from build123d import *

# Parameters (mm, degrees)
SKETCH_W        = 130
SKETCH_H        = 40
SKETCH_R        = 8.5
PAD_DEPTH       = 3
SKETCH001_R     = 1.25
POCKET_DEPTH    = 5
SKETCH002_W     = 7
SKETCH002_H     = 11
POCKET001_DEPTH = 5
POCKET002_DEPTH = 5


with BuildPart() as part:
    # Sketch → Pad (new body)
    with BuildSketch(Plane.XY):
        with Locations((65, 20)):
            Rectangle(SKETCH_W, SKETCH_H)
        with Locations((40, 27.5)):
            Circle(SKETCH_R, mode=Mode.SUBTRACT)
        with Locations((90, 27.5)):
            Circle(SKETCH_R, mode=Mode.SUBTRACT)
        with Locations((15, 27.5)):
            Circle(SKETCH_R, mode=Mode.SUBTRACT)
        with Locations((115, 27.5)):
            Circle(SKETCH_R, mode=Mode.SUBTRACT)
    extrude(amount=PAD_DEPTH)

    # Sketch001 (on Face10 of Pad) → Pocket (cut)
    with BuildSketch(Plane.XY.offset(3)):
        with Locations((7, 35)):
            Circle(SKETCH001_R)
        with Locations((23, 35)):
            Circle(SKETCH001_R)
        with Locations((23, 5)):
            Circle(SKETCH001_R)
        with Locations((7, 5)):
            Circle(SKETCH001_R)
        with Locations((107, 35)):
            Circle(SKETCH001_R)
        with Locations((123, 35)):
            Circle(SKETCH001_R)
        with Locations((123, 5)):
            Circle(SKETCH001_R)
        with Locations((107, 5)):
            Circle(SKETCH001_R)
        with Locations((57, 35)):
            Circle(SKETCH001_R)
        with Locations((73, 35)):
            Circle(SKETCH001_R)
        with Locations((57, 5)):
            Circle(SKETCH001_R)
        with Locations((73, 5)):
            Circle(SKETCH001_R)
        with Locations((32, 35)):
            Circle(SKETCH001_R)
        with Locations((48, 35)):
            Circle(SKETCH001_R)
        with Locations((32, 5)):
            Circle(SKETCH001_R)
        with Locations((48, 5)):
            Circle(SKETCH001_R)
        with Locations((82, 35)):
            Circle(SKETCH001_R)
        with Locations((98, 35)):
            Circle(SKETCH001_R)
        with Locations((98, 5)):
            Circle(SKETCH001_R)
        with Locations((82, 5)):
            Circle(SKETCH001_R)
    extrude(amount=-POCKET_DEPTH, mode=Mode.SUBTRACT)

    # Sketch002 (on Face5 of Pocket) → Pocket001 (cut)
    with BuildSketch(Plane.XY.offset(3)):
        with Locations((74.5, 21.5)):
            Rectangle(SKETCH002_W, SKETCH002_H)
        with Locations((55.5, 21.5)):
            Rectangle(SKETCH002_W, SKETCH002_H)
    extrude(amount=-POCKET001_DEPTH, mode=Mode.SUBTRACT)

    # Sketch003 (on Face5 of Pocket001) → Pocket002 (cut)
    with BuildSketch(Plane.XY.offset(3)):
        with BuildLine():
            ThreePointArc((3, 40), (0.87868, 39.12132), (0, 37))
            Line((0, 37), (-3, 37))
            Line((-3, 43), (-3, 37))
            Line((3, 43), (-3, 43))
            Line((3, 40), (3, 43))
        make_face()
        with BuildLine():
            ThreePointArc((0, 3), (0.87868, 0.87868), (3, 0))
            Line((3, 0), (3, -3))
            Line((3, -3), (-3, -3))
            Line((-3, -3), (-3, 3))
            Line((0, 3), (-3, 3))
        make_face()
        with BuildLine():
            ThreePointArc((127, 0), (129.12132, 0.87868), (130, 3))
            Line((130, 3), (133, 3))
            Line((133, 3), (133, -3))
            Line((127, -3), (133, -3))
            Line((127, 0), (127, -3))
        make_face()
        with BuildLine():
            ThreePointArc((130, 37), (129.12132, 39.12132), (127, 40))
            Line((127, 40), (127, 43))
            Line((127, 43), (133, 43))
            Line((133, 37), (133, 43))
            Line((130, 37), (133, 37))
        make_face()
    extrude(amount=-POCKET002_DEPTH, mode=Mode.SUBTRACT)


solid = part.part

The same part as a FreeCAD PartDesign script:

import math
import FreeCAD as App
import Part
import Sketcher


def add_polygon(sketch, points):
    """Adds a closed chain of lines whose ends are joined by coincident constraints."""
    first, n = sketch.GeometryCount, len(points)
    for a, b in zip(points, points[1:] + points[:1]):
        sketch.addGeometry(Part.LineSegment(App.Vector(*a, 0), App.Vector(*b, 0)), False)
    for i in range(n):
        sketch.addConstraint(Sketcher.Constraint("Coincident", first + i, 2, first + (i + 1) % n, 1))

doc = App.newDocument("Part")
body = doc.addObject("PartDesign::Body", "Body")

# Sketch on XY plane
sketch1 = body.newObject("Sketcher::SketchObject", "Sketch")
sketch1.AttachmentSupport = (doc.getObject("XY_Plane"), [""])
sketch1.MapMode = "FlatFace"
add_polygon(sketch1, [(0, 40), (0, 0), (130, 0), (130, 40)])  # lines 0-3
sketch1.addGeometry(Part.Circle(App.Vector(15, 27.5, 0), App.Vector(0, 0, 1), 8.5), False)  # 4
sketch1.addGeometry(Part.Circle(App.Vector(40, 27.5, 0), App.Vector(0, 0, 1), 8.5), False)  # 5
sketch1.addGeometry(Part.Circle(App.Vector(90, 27.5, 0), App.Vector(0, 0, 1), 8.5), False)  # 6
sketch1.addGeometry(Part.Circle(App.Vector(115, 27.5, 0), App.Vector(0, 0, 1), 8.5), False)  # 7
sketch1.addConstraint([
    Sketcher.Constraint("Vertical", 0),
    Sketcher.Constraint("Horizontal", 1),
    Sketcher.Constraint("Vertical", 2),
    Sketcher.Constraint("Horizontal", 3),
    Sketcher.Constraint("Coincident", 0, 2, -1, 1),
    Sketcher.Constraint("Equal", 4, 5),
    Sketcher.Constraint("Equal", 5, 6),
    Sketcher.Constraint("Equal", 6, 7),
    Sketcher.Constraint("Horizontal", 4, 3, 5, 3),
    Sketcher.Constraint("Horizontal", 5, 3, 6, 3),
    Sketcher.Constraint("Horizontal", 6, 3, 7, 3),
    Sketcher.Constraint("Diameter", 4, 17.0),
    Sketcher.Constraint("DistanceX", 1, 1, 1, 2, 130.0),
    Sketcher.Constraint("DistanceY", 0, 2, 0, 1, 40.0),
    Sketcher.Constraint("DistanceX", -1, 1, 4, 3, 15.0),
    Sketcher.Constraint("DistanceX", -1, 1, 5, 3, 40.0),
    Sketcher.Constraint("DistanceX", -1, 1, 6, 3, 90.0),
    Sketcher.Constraint("DistanceX", -1, 1, 7, 3, 115.0),
    Sketcher.Constraint("DistanceY", -1, 1, 4, 3, 27.5),
])
pad1 = body.newObject("PartDesign::Pad", "Pad")
pad1.Profile = sketch1
pad1.Length = 3

# Sketch on XY plane
sketch2 = body.newObject("Sketcher::SketchObject", "Sketch001")
sketch2.AttachmentSupport = (doc.getObject("XY_Plane"), [""])
sketch2.MapMode = "FlatFace"
sketch2.AttachmentOffset = App.Placement(App.Vector(0, 0, 3), App.Rotation())
sketch2.addGeometry([
    Part.Circle(App.Vector(7, 35, 0), App.Vector(0, 0, 1), 1.25),  # 0
    Part.Circle(App.Vector(23, 35, 0), App.Vector(0, 0, 1), 1.25),  # 1
    Part.Circle(App.Vector(23, 5, 0), App.Vector(0, 0, 1), 1.25),  # 2
    Part.Circle(App.Vector(7, 5, 0), App.Vector(0, 0, 1), 1.25),  # 3
    Part.Circle(App.Vector(107, 35, 0), App.Vector(0, 0, 1), 1.25),  # 4
    Part.Circle(App.Vector(123, 35, 0), App.Vector(0, 0, 1), 1.25),  # 5
    Part.Circle(App.Vector(123, 5, 0), App.Vector(0, 0, 1), 1.25),  # 6
    Part.Circle(App.Vector(107, 5, 0), App.Vector(0, 0, 1), 1.25),  # 7
    Part.Circle(App.Vector(57, 35, 0), App.Vector(0, 0, 1), 1.25),  # 8
    Part.Circle(App.Vector(73, 35, 0), App.Vector(0, 0, 1), 1.25),  # 9
    Part.Circle(App.Vector(57, 5, 0), App.Vector(0, 0, 1), 1.25),  # 10
    Part.Circle(App.Vector(73, 5, 0), App.Vector(0, 0, 1), 1.25),  # 11
    Part.Circle(App.Vector(32, 35, 0), App.Vector(0, 0, 1), 1.25),  # 12
    Part.Circle(App.Vector(48, 35, 0), App.Vector(0, 0, 1), 1.25),  # 13
    Part.Circle(App.Vector(32, 5, 0), App.Vector(0, 0, 1), 1.25),  # 14
    Part.Circle(App.Vector(48, 5, 0), App.Vector(0, 0, 1), 1.25),  # 15
    Part.Circle(App.Vector(82, 35, 0), App.Vector(0, 0, 1), 1.25),  # 16
    Part.Circle(App.Vector(98, 35, 0), App.Vector(0, 0, 1), 1.25),  # 17
    Part.Circle(App.Vector(98, 5, 0), App.Vector(0, 0, 1), 1.25),  # 18
    Part.Circle(App.Vector(82, 5, 0), App.Vector(0, 0, 1), 1.25),  # 19
], False)
sketch2.addConstraint([
    Sketcher.Constraint("Equal", 0, 1),
    Sketcher.Constraint("Equal", 1, 2),
    Sketcher.Constraint("Equal", 2, 3),
    Sketcher.Constraint("Equal", 3, 4),
    Sketcher.Constraint("Equal", 4, 5),
    Sketcher.Constraint("Equal", 5, 6),
    Sketcher.Constraint("Equal", 6, 7),
    Sketcher.Constraint("Equal", 7, 8),
    Sketcher.Constraint("Equal", 8, 9),
    Sketcher.Constraint("Equal", 9, 10),
    Sketcher.Constraint("Equal", 10, 11),
    Sketcher.Constraint("Equal", 11, 12),
    Sketcher.Constraint("Equal", 12, 13),
    Sketcher.Constraint("Equal", 13, 14),
    Sketcher.Constraint("Equal", 14, 15),
    Sketcher.Constraint("Equal", 15, 16),
    Sketcher.Constraint("Equal", 16, 17),
    Sketcher.Constraint("Equal", 17, 18),
    Sketcher.Constraint("Equal", 18, 19),
    Sketcher.Constraint("Horizontal", 0, 3, 1, 3),
    Sketcher.Constraint("Horizontal", 2, 3, 3, 3),
    Sketcher.Constraint("Horizontal", 1, 3, 4, 3),
    Sketcher.Constraint("Horizontal", 4, 3, 5, 3),
    Sketcher.Constraint("Horizontal", 3, 3, 6, 3),
    Sketcher.Constraint("Horizontal", 6, 3, 7, 3),
    Sketcher.Constraint("Horizontal", 5, 3, 8, 3),
    Sketcher.Constraint("Horizontal", 8, 3, 9, 3),
    Sketcher.Constraint("Horizontal", 7, 3, 10, 3),
    Sketcher.Constraint("Horizontal", 10, 3, 11, 3),
    Sketcher.Constraint("Horizontal", 9, 3, 12, 3),
    Sketcher.Constraint("Horizontal", 12, 3, 13, 3),
    Sketcher.Constraint("Horizontal", 11, 3, 14, 3),
    Sketcher.Constraint("Horizontal", 14, 3, 15, 3),
    Sketcher.Constraint("Horizontal", 13, 3, 16, 3),
    Sketcher.Constraint("Horizontal", 16, 3, 17, 3),
    Sketcher.Constraint("Horizontal", 15, 3, 18, 3),
    Sketcher.Constraint("Horizontal", 18, 3, 19, 3),
    Sketcher.Constraint("Vertical", 1, 3, 2, 3),
    Sketcher.Constraint("Vertical", 0, 3, 3, 3),
    Sketcher.Constraint("Vertical", 5, 3, 6, 3),
    Sketcher.Constraint("Vertical", 4, 3, 7, 3),
    Sketcher.Constraint("Vertical", 8, 3, 10, 3),
    Sketcher.Constraint("Vertical", 9, 3, 11, 3),
    Sketcher.Constraint("Vertical", 12, 3, 14, 3),
    Sketcher.Constraint("Vertical", 13, 3, 15, 3),
    Sketcher.Constraint("Vertical", 17, 3, 18, 3),
    Sketcher.Constraint("Vertical", 16, 3, 19, 3),
    Sketcher.Constraint("Diameter", 0, 2.5),
    Sketcher.Constraint("DistanceX", -1, 1, 0, 3, 7.0),
    Sketcher.Constraint("DistanceY", -1, 1, 0, 3, 35.0),
    Sketcher.Constraint("DistanceX", -1, 1, 1, 3, 23.0),
    Sketcher.Constraint("DistanceY", -1, 1, 2, 3, 5.0),
    Sketcher.Constraint("DistanceX", -1, 1, 4, 3, 107.0),
    Sketcher.Constraint("DistanceX", -1, 1, 5, 3, 123.0),
    Sketcher.Constraint("DistanceX", -1, 1, 8, 3, 57.0),
    Sketcher.Constraint("DistanceX", -1, 1, 9, 3, 73.0),
    Sketcher.Constraint("DistanceX", -1, 1, 12, 3, 32.0),
    Sketcher.Constraint("DistanceX", -1, 1, 13, 3, 48.0),
    Sketcher.Constraint("DistanceX", -1, 1, 16, 3, 82.0),
    Sketcher.Constraint("DistanceX", -1, 1, 17, 3, 98.0),
])
pocket1 = body.newObject("PartDesign::Pocket", "Pocket")
pocket1.Profile = sketch2
pocket1.Length = 5

# Sketch on XY plane
sketch3 = body.newObject("Sketcher::SketchObject", "Sketch002")
sketch3.AttachmentSupport = (doc.getObject("XY_Plane"), [""])
sketch3.MapMode = "FlatFace"
sketch3.AttachmentOffset = App.Placement(App.Vector(0, 0, 3), App.Rotation())
add_polygon(sketch3, [(71, 27), (71, 16), (78, 16), (78, 27)])  # lines 0-3
add_polygon(sketch3, [(52, 27), (52, 16), (59, 16), (59, 27)])  # lines 4-7
sketch3.addConstraint([
    Sketcher.Constraint("Vertical", 0),
    Sketcher.Constraint("Horizontal", 1),
    Sketcher.Constraint("Vertical", 2),
    Sketcher.Constraint("Horizontal", 3),
    Sketcher.Constraint("Vertical", 4),
    Sketcher.Constraint("Horizontal", 5),
    Sketcher.Constraint("Vertical", 6),
    Sketcher.Constraint("Horizontal", 7),
    Sketcher.Constraint("Horizontal", 1, 2, 4, 2),
    Sketcher.Constraint("Horizontal", 3, 2, 6, 2),
    Sketcher.Constraint("Equal", 3, 5),
    Sketcher.Constraint("DistanceX", 1, 1, 1, 2, 7.0),
    Sketcher.Constraint("DistanceY", 0, 2, 0, 1, 11.0),
    Sketcher.Constraint("DistanceX", -1, 1, 0, 2, 71.0),
    Sketcher.Constraint("DistanceY", -1, 1, 0, 2, 16.0),
    Sketcher.Constraint("DistanceX", -1, 1, 4, 2, 52.0),
])
pocket2 = body.newObject("PartDesign::Pocket", "Pocket001")
pocket2.Profile = sketch3
pocket2.Length = 5

# Sketch on XY plane
sketch4 = body.newObject("Sketcher::SketchObject", "Sketch003")
sketch4.AttachmentSupport = (doc.getObject("XY_Plane"), [""])
sketch4.MapMode = "FlatFace"
sketch4.AttachmentOffset = App.Placement(App.Vector(0, 0, 3), App.Rotation())
sketch4.addGeometry([
    Part.ArcOfCircle(Part.Circle(App.Vector(3.000001, 36.999999, 0), App.Vector(0, 0, 1), 3.000001), math.radians(90.000022), math.radians(179.999978)),  # 0
    Part.LineSegment(App.Vector(3, 40, 0), App.Vector(3, 43, 0)),  # 1
    Part.LineSegment(App.Vector(3, 43, 0), App.Vector(-3, 43, 0)),  # 2
    Part.LineSegment(App.Vector(-3, 43, 0), App.Vector(-3, 37, 0)),  # 3
    Part.LineSegment(App.Vector(-3, 37, 0), App.Vector(0, 37, 0)),  # 4
    Part.ArcOfCircle(Part.Circle(App.Vector(3.000001, 3.000001, 0), App.Vector(0, 0, 1), 3.000001), math.radians(-179.999978), math.radians(-90.000022)),  # 5
    Part.LineSegment(App.Vector(0, 3, 0), App.Vector(-3, 3, 0)),  # 6
    Part.LineSegment(App.Vector(-3, 3, 0), App.Vector(-3, -3, 0)),  # 7
    Part.LineSegment(App.Vector(-3, -3, 0), App.Vector(3, -3, 0)),  # 8
    Part.LineSegment(App.Vector(3, -3, 0), App.Vector(3, 0, 0)),  # 9
    Part.ArcOfCircle(Part.Circle(App.Vector(126.999999, 3.000001, 0), App.Vector(0, 0, 1), 3.000001), math.radians(-89.999978), math.radians(-0.000022)),  # 10
    Part.LineSegment(App.Vector(127, 0, 0), App.Vector(127, -3, 0)),  # 11
    Part.LineSegment(App.Vector(127, -3, 0), App.Vector(133, -3, 0)),  # 12
    Part.LineSegment(App.Vector(133, -3, 0), App.Vector(133, 3, 0)),  # 13
    Part.LineSegment(App.Vector(133, 3, 0), App.Vector(130, 3, 0)),  # 14
    Part.ArcOfCircle(Part.Circle(App.Vector(126.999999, 36.999999, 0), App.Vector(0, 0, 1), 3.000001), math.radians(0.000022), math.radians(89.999978)),  # 15
    Part.LineSegment(App.Vector(130, 37, 0), App.Vector(133, 37, 0)),  # 16
    Part.LineSegment(App.Vector(133, 37, 0), App.Vector(133, 43, 0)),  # 17
    Part.LineSegment(App.Vector(133, 43, 0), App.Vector(127, 43, 0)),  # 18
    Part.LineSegment(App.Vector(127, 43, 0), App.Vector(127, 40, 0)),  # 19
], False)
sketch4.addConstraint([
    Sketcher.Constraint("Coincident", 0, 1, 1, 1),
    Sketcher.Constraint("Coincident", 1, 2, 2, 1),
    Sketcher.Constraint("Coincident", 2, 2, 3, 1),
    Sketcher.Constraint("Coincident", 3, 2, 4, 1),
    Sketcher.Constraint("Coincident", 4, 2, 0, 2),
    Sketcher.Constraint("Coincident", 5, 1, 6, 1),
    Sketcher.Constraint("Coincident", 6, 2, 7, 1),
    Sketcher.Constraint("Coincident", 7, 2, 8, 1),
    Sketcher.Constraint("Coincident", 8, 2, 9, 1),
    Sketcher.Constraint("Coincident", 9, 2, 5, 2),
    Sketcher.Constraint("Coincident", 10, 1, 11, 1),
    Sketcher.Constraint("Coincident", 11, 2, 12, 1),
    Sketcher.Constraint("Coincident", 12, 2, 13, 1),
    Sketcher.Constraint("Coincident", 13, 2, 14, 1),
    Sketcher.Constraint("Coincident", 14, 2, 10, 2),
    Sketcher.Constraint("Coincident", 15, 1, 16, 1),
    Sketcher.Constraint("Coincident", 16, 2, 17, 1),
    Sketcher.Constraint("Coincident", 17, 2, 18, 1),
    Sketcher.Constraint("Coincident", 18, 2, 19, 1),
    Sketcher.Constraint("Coincident", 19, 2, 15, 2),
    Sketcher.Constraint("Vertical", 1),
    Sketcher.Constraint("Horizontal", 2),
    Sketcher.Constraint("Vertical", 3),
    Sketcher.Constraint("Horizontal", 4),
    Sketcher.Constraint("Horizontal", 6),
    Sketcher.Constraint("Vertical", 7),
    Sketcher.Constraint("Horizontal", 8),
    Sketcher.Constraint("Vertical", 9),
    Sketcher.Constraint("Vertical", 11),
    Sketcher.Constraint("Horizontal", 12),
    Sketcher.Constraint("Vertical", 13),
    Sketcher.Constraint("Horizontal", 14),
    Sketcher.Constraint("Horizontal", 16),
    Sketcher.Constraint("Vertical", 17),
    Sketcher.Constraint("Horizontal", 18),
    Sketcher.Constraint("Vertical", 19),
    Sketcher.Constraint("Equal", 0, 5),
    Sketcher.Constraint("Equal", 5, 10),
    Sketcher.Constraint("Equal", 10, 15),
    Sketcher.Constraint("Symmetric", 6, 2, 8, 2, -1, 1),
    Sketcher.Constraint("PointOnObject", 4, 2, -2),
    Sketcher.Constraint("PointOnObject", 5, 1, -2),
    Sketcher.Constraint("PointOnObject", 9, 2, -1),
    Sketcher.Constraint("PointOnObject", 10, 1, -1),
    Sketcher.Constraint("Horizontal", 0, 3, 15, 3),
    Sketcher.Constraint("Horizontal", 15, 3, 3, 2),
    Sketcher.Constraint("Horizontal", 10, 3, 5, 1),
    Sketcher.Constraint("Horizontal", 8, 2, 11, 2),
    Sketcher.Constraint("Horizontal", 6, 2, 13, 2),
    Sketcher.Constraint("Horizontal", 4, 2, 15, 1),
    Sketcher.Constraint("Horizontal", 2, 2, 17, 2),
    Sketcher.Constraint("Vertical", 10, 3, 15, 3),
    Sketcher.Constraint("Vertical", 5, 3, 0, 1),
    Sketcher.Constraint("Vertical", 3, 2, 6, 2),
    Sketcher.Constraint("Vertical", 1, 2, 8, 2),
    Sketcher.Constraint("Vertical", 15, 3, 10, 1),
    Sketcher.Constraint("Vertical", 13, 2, 16, 2),
    Sketcher.Constraint("Vertical", 11, 2, 18, 2),
    Sketcher.Constraint("Equal", 8, 12),
    Sketcher.Constraint("Equal", 16, 1),
    Sketcher.Constraint("Radius", 0, 3.000001),
    Sketcher.Constraint("DistanceY", -1, 1, 0, 3, 36.999999),
    Sketcher.Constraint("DistanceX", -1, 1, 10, 3, 126.999999),
])
pocket3 = body.newObject("PartDesign::Pocket", "Pocket002")
pocket3.Profile = sketch4
pocket3.Length = 5

doc.recompute()
